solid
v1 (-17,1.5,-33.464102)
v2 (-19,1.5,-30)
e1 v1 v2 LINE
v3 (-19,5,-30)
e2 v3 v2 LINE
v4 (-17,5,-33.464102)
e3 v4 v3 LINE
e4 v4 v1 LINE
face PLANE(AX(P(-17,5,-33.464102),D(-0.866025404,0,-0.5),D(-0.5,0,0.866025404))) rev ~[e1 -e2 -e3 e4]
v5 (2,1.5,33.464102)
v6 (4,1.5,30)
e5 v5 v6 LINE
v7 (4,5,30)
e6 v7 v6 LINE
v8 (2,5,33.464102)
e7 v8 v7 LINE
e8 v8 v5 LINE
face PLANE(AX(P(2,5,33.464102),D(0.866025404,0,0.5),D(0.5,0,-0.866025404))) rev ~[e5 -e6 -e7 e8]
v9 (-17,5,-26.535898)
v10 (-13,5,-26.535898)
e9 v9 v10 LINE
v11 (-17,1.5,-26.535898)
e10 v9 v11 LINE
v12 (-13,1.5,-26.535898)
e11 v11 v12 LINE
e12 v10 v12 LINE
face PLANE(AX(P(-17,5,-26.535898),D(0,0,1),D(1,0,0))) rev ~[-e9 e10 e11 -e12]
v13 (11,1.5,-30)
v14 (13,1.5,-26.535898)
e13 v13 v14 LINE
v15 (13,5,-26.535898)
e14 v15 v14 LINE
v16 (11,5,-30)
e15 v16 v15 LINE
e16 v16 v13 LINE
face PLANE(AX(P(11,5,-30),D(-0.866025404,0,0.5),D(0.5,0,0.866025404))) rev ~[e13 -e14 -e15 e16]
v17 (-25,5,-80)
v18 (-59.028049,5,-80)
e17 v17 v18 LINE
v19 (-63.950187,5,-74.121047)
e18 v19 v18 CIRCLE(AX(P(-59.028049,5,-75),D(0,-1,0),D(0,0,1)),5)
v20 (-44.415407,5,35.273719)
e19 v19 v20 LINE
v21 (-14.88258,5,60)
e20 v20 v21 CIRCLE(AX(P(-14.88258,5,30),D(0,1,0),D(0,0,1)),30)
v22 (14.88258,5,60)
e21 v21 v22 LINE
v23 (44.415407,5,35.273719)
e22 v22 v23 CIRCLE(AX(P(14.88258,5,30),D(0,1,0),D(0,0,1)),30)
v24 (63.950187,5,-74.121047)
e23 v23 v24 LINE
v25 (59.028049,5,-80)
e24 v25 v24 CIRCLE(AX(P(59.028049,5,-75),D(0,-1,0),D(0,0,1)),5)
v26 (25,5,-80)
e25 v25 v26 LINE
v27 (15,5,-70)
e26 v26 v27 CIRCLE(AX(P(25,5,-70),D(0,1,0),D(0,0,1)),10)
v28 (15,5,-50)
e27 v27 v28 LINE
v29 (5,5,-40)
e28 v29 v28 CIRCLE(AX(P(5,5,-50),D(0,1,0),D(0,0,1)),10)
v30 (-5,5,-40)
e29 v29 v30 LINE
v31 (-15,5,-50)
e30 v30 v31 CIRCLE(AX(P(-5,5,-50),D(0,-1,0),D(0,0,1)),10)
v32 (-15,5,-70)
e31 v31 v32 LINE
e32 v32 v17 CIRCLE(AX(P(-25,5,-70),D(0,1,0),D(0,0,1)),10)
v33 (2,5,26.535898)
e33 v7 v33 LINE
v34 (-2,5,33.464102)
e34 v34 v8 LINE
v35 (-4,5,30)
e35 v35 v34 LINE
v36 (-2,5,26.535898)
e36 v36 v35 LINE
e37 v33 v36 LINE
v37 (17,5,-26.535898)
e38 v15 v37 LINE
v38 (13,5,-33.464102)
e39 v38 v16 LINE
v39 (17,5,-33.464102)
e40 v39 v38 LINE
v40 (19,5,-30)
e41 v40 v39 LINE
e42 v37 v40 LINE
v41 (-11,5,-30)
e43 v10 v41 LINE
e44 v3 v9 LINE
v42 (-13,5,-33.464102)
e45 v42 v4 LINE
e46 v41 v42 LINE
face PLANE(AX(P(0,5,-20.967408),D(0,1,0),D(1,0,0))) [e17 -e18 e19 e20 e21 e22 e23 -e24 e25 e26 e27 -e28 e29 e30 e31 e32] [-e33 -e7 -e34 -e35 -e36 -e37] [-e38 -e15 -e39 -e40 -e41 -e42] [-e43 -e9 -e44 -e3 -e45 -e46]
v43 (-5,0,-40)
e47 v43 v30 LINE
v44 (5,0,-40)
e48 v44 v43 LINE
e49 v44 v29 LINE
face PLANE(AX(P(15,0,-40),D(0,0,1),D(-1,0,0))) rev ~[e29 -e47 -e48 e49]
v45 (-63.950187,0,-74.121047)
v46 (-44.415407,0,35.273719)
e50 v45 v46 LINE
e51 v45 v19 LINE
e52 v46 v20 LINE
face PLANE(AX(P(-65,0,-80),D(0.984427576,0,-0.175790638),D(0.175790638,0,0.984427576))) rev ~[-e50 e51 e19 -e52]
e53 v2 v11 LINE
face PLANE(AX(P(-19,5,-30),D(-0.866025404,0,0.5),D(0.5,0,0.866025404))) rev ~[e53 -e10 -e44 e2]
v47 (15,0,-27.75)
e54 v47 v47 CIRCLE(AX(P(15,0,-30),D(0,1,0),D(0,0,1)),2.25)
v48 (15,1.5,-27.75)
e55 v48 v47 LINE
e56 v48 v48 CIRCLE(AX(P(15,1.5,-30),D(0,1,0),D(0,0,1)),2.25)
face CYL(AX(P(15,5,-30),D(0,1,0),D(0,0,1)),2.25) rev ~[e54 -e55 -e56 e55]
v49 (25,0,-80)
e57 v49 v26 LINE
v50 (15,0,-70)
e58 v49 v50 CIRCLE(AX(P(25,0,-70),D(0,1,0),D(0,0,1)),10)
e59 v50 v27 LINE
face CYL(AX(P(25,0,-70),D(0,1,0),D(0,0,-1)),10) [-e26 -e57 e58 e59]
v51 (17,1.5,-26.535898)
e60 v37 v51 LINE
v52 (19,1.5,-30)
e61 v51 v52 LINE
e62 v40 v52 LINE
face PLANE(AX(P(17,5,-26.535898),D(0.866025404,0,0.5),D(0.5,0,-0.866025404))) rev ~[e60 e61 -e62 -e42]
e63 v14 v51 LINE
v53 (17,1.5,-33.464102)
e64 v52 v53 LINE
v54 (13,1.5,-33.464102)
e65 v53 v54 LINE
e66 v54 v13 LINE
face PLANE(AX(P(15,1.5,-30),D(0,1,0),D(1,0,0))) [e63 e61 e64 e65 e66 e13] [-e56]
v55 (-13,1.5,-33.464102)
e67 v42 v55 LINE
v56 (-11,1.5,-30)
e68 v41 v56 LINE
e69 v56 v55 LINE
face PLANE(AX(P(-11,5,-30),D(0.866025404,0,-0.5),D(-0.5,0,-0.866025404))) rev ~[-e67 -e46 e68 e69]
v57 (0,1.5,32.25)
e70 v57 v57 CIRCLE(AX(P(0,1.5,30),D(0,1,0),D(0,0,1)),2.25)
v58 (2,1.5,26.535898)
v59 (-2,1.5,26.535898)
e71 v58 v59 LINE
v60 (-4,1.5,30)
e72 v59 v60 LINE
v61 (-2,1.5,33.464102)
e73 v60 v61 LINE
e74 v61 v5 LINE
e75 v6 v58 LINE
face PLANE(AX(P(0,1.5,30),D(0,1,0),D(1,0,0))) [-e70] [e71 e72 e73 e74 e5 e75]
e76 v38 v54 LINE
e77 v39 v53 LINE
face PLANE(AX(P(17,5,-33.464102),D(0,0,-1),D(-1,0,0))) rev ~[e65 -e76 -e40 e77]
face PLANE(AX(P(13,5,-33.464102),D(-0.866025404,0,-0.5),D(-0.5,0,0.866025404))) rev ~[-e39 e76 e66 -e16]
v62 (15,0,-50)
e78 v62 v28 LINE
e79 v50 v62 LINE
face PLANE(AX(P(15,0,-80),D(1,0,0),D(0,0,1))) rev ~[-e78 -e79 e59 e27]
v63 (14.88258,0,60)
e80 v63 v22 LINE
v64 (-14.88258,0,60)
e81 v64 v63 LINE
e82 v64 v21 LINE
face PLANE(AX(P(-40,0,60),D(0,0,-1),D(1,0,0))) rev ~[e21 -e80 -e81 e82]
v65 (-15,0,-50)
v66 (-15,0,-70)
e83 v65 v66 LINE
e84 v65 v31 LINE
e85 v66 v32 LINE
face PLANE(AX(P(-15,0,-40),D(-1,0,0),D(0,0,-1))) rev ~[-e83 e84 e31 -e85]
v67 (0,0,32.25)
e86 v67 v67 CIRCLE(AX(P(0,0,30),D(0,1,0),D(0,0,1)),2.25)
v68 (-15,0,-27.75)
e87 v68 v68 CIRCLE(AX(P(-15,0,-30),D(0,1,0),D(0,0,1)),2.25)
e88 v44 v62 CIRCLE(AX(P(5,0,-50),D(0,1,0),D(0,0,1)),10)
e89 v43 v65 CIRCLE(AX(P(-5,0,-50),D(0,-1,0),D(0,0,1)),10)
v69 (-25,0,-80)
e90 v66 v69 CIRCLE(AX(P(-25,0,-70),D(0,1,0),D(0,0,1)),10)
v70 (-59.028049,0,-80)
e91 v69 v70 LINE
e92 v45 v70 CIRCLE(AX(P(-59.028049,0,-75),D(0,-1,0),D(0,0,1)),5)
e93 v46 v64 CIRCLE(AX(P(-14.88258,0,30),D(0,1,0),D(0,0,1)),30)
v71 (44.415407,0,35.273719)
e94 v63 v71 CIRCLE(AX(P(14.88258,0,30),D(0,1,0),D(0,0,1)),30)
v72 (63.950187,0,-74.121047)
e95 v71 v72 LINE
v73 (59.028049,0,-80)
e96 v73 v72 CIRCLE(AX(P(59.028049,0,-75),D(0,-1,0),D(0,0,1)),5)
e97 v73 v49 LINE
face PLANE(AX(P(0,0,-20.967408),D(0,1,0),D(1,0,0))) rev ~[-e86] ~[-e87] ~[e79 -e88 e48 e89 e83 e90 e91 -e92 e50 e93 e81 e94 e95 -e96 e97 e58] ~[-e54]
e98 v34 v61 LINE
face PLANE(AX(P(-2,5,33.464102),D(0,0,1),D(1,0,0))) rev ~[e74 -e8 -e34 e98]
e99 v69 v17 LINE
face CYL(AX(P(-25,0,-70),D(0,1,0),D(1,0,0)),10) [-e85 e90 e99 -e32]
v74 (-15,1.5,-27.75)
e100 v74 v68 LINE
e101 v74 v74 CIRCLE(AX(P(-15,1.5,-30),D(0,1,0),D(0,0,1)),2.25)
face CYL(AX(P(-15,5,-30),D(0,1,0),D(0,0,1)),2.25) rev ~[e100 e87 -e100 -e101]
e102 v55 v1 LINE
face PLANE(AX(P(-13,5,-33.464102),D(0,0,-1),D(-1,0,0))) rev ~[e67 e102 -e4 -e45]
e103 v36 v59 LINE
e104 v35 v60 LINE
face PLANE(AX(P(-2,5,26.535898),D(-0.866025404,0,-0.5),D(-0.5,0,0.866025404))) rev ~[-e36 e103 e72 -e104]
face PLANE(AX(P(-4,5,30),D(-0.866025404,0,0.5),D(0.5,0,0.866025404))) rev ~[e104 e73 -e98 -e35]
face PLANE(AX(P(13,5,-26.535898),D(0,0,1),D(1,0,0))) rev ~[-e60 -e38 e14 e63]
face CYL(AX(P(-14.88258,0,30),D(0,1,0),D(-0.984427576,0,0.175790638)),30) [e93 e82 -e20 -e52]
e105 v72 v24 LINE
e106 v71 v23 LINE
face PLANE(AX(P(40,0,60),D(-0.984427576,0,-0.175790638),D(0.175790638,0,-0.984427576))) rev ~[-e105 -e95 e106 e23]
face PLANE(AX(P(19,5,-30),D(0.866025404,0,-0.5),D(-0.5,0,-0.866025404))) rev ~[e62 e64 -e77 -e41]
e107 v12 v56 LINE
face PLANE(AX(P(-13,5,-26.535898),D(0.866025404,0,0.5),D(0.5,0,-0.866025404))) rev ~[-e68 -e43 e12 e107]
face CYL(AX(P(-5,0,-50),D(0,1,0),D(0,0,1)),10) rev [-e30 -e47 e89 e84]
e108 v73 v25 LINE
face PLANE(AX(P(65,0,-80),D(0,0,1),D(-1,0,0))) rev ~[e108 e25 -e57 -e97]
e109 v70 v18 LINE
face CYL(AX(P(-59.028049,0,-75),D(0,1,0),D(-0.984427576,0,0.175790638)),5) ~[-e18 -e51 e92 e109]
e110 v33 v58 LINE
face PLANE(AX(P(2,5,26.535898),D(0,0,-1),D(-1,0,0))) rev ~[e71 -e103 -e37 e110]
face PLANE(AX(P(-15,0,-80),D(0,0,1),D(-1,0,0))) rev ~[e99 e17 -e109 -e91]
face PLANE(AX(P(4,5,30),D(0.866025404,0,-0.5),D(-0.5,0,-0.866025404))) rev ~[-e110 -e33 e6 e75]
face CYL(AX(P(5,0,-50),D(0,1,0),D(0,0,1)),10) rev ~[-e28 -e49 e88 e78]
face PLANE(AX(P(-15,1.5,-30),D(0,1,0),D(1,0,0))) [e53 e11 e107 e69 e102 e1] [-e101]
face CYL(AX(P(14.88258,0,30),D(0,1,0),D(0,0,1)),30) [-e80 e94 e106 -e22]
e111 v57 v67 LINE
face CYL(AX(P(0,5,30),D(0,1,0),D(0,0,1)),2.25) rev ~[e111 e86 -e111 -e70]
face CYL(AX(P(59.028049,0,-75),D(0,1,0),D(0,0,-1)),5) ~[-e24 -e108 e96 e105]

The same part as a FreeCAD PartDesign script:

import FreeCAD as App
import Part
import Sketcher
from FreeCAD import Vector
Q = App.Units.Quantity


def edges_at(feature, points):
    """Names of the edges that pass closest to the given points."""
    edges = feature.Shape.Edges
    near = lambda p: min(range(len(edges)), key=lambda i: edges[i].distToShape(Part.Vertex(*p))[0])
    return sorted({f"Edge{near(p) + 1}" for p in points})


def add_polygon(sketch, points):
    """Adds a closed chain of lines whose ends are joined by coincident constraints."""
    first, n = sketch.GeometryCount, len(points)
    for a, b in zip(points, points[1:] + points[:1]):
        sketch.addGeometry(Part.LineSegment(App.Vector(*a, 0), App.Vector(*b, 0)), False)
    for i in range(n):
        sketch.addConstraint(Sketcher.Constraint("Coincident", first + i, 2, first + (i + 1) % n, 1))

doc = App.newDocument("Part")
params = doc.addObject("Spreadsheet::Sheet", "Params")
for row, (alias, value) in enumerate([
    ("sketch1_width", "50 mm"),
    ("sketch1_width2", "80 mm"),
    ("sketch1_width3", "30 mm"),
    ("sketch1_height", "40 mm"),
    ("pad1_length", "5 mm"),
    ("sketch2_diameter", "4.5 mm"),
    ("pocket1_length", "5 mm"),
    ("fillet_radius", "30 mm"),
    ("fillet2_radius", "30 mm"),
    ("fillet3_radius", "10 mm"),
    ("fillet4_radius", "10 mm"),
    ("fillet5_radius", "10 mm"),
    ("fillet6_radius", "10 mm"),
    ("fillet7_radius", "5 mm"),
    ("fillet8_radius", "5 mm"),
    ("sketch3_width", "4 mm"),
    ("sketch3_length", "4 mm"),
    ("pocket2_length", "3.5 mm"),
], start=1):
    params.set(f"A{row}", alias)
    params.set(f"B{row}", "=" + value)
    params.setAlias(f"B{row}", alias)

body = doc.addObject("PartDesign::Body", "Body")

# Sketch on XZ plane
sketch1 = doc.addObject("Sketcher::SketchObject", "Sketch")
body.addObject(sketch1)
sketch1.AttachmentSupport = (doc.XZ_Plane, [""])
sketch1.MapMode = "FlatFace"
add_polygon(sketch1, [(-15, -40), (-15, -80), (-65, -80), (-40, 60), (40, 60), (65, -80), (15, -80), (15, -40)])  # lines 0-7
sketch1.addConstraint(Sketcher.Constraint("Vertical", 0))
sketch1.addConstraint(Sketcher.Constraint("Horizontal", 1))
sketch1.addConstraint(Sketcher.Constraint("Horizontal", 3))
sketch1.addConstraint(Sketcher.Constraint("Horizontal", 5))
sketch1.addConstraint(Sketcher.Constraint("Vertical", 6))
sketch1.addConstraint(Sketcher.Constraint("Horizontal", 7))
sketch1.addConstraint(Sketcher.Constraint("Symmetric", 1, 2, 4, 2, -2))
sketch1.addConstraint(Sketcher.Constraint("Equal", 1, 5))
sketch1.addConstraint(Sketcher.Constraint("Equal", 2, 4))
sketch1.addConstraint(Sketcher.Constraint("DistanceX", 1, 2, 1, 1, Q("50 mm")))
sketch1.addConstraint(Sketcher.Constraint("DistanceX", 3, 1, 3, 2, Q("80 mm")))
sketch1.addConstraint(Sketcher.Constraint("DistanceX", 7, 2, 7, 1, Q("30 mm")))
sketch1.addConstraint(Sketcher.Constraint("DistanceY", 0, 2, 0, 1, Q("40 mm")))
sketch1.addConstraint(Sketcher.Constraint("DistanceY", 0, 2, -1, 1, Q("80 mm")))
sketch1.addConstraint(Sketcher.Constraint("DistanceY", -1, 1, 2, 2, Q("60 mm")))
sketch1.setExpression("Constraints[17]", "Params.sketch1_width")
sketch1.setExpression("Constraints[18]", "Params.sketch1_width2")
sketch1.setExpression("Constraints[19]", "Params.sketch1_width3")
sketch1.setExpression("Constraints[20]", "Params.sketch1_height")
pad1 = doc.addObject("PartDesign::Pad", "Pad")
body.addObject(pad1)
pad1.Profile = sketch1
pad1.setExpression("Length", "Params.pad1_length")
pad1.Reversed = True

# Sketch on XZ plane
sketch2 = doc.addObject("Sketcher::SketchObject", "Sketch001")
body.addObject(sketch2)
sketch2.AttachmentSupport = (doc.XZ_Plane, [""])
sketch2.MapMode = "FlatFace"
sketch2.AttachmentOffset = App.Placement(Vector(0, 0, -5), App.Rotation())
sketch2.addGeometry(Part.Circle(Vector(0, 30, 0), Vector(0, 0, 1), 2.2), False)
sketch2.addGeometry(Part.Circle(Vector(-15, -30, 0), Vector(0, 0, 1), 2.2), False)
sketch2.addGeometry(Part.Circle(Vector(15, -30, 0), Vector(0, 0, 1), 2.2), False)
sketch2.addConstraint(Sketcher.Constraint("Equal", 0, 1))
sketch2.addConstraint(Sketcher.Constraint("Equal", 1, 2))
sketch2.addConstraint(Sketcher.Constraint("Symmetric", 1, 3, 2, 3, -2))
sketch2.addConstraint(Sketcher.Constraint("PointOnObject", 0, 3, -2))
sketch2.addConstraint(Sketcher.Constraint("Diameter", 0, Q("4.5 mm")))
sketch2.addConstraint(Sketcher.Constraint("DistanceY", -1, 1, 0, 3, Q("30 mm")))
sketch2.addConstraint(Sketcher.Constraint("DistanceX", 1, 3, -1, 1, Q("15 mm")))
sketch2.addConstraint(Sketcher.Constraint("DistanceY", 1, 3, -1, 1, Q("30 mm")))
sketch2.setExpression("Constraints[4]", "Params.sketch2_diameter")
pocket1 = doc.addObject("PartDesign::Pocket", "Pocket")
body.addObject(pocket1)
pocket1.Profile = sketch2
pocket1.setExpression("Length", "Params.pocket1_length")
pocket1.Reversed = True
doc.recompute()

fillet = doc.addObject("PartDesign::Fillet", "Fillet")
body.addObject(fillet)
fillet.Base = (pocket1, edges_at(pocket1, [(-40, 2.5, 60)]))
fillet.setExpression("Radius", "Params.fillet_radius")
doc.recompute()

fillet2 = doc.addObject("PartDesign::Fillet", "Fillet001")
body.addObject(fillet2)
fillet2.Base = (fillet, edges_at(fillet, [(40, 2.5, 60)]))
fillet2.setExpression("Radius", "Params.fillet2_radius")
doc.recompute()

fillet3 = doc.addObject("PartDesign::Fillet", "Fillet002")
body.addObject(fillet3)
fillet3.Base = (fillet2, edges_at(fillet2, [(15, 2.5, -80)]))
fillet3.setExpression("Radius", "Params.fillet3_radius")
doc.recompute()

fillet4 = doc.addObject("PartDesign::Fillet", "Fillet003")
body.addObject(fillet4)
fillet4.Base = (fillet3, edges_at(fillet3, [(-15, 2.5, -80)]))
fillet4.setExpression("Radius", "Params.fillet4_radius")
doc.recompute()

fillet5 = doc.addObject("PartDesign::Fillet", "Fillet004")
body.addObject(fillet5)
fillet5.Base = (fillet4, edges_at(fillet4, [(15, 2.5, -40)]))
fillet5.setExpression("Radius", "Params.fillet5_radius")
doc.recompute()

fillet6 = doc.addObject("PartDesign::Fillet", "Fillet005")
body.addObject(fillet6)
fillet6.Base = (fillet5, edges_at(fillet5, [(-15, 2.5, -40)]))
fillet6.setExpression("Radius", "Params.fillet6_radius")
doc.recompute()

fillet7 = doc.addObject("PartDesign::Fillet", "Fillet006")
body.addObject(fillet7)
fillet7.Base = (fillet6, edges_at(fillet6, [(65, 2.5, -80)]))
fillet7.setExpression("Radius", "Params.fillet7_radius")
doc.recompute()

fillet8 = doc.addObject("PartDesign::Fillet", "Fillet007")
body.addObject(fillet8)
fillet8.Base = (fillet7, edges_at(fillet7, [(-65, 2.5, -80)]))
fillet8.setExpression("Radius", "Params.fillet8_radius")

# Sketch on XZ plane
sketch3 = doc.addObject("Sketcher::SketchObject", "Sketch002")
body.addObject(sketch3)
sketch3.AttachmentSupport = (doc.XZ_Plane, [""])
sketch3.MapMode = "FlatFace"
sketch3.AttachmentOffset = App.Placement(Vector(0, 0, -5), App.Rotation())
add_polygon(sketch3, [(-4, 30), (-2, 33.5), (2, 33.5), (4, 30), (2, 26.5), (-2, 26.5)])  # lines 0-5
add_polygon(sketch3, [(-11, -30), (-13, -33.5), (-17, -33.5), (-19, -30), (-17, -26.5), (-13, -26.5)])  # lines 6-11
add_polygon(sketch3, [(19, -30), (17, -33.5), (13, -33.5), (11, -30), (13, -26.5), (17, -26.5)])  # lines 12-17
sketch3.addConstraint(Sketcher.Constraint("Horizontal", 1))
sketch3.addConstraint(Sketcher.Constraint("Horizontal", 4))
sketch3.addConstraint(Sketcher.Constraint("Horizontal", 7))
sketch3.addConstraint(Sketcher.Constraint("Horizontal", 10))
sketch3.addConstraint(Sketcher.Constraint("Horizontal", 13))
sketch3.addConstraint(Sketcher.Constraint("Horizontal", 16))
sketch3.addConstraint(Sketcher.Constraint("Symmetric", 2, 2, 5, 2, -2))
sketch3.addConstraint(Sketcher.Constraint("Symmetric", 7, 2, 12, 2, -2))
sketch3.addConstraint(Sketcher.Constraint("Symmetric", 11, 2, 14, 2, -2))
sketch3.addConstraint(Sketcher.Constraint("Symmetric", 10, 2, 15, 2, -2))
sketch3.addConstraint(Sketcher.Constraint("Symmetric", 8, 2, 17, 2, -2))
sketch3.addConstraint(Sketcher.Constraint("Parallel", 0, 3))
sketch3.addConstraint(Sketcher.Constraint("Parallel", 2, 5))
sketch3.addConstraint(Sketcher.Constraint("Parallel", 3, 6))
sketch3.addConstraint(Sketcher.Constraint("Parallel", 5, 8))
sketch3.addConstraint(Sketcher.Constraint("Parallel", 6, 9))
sketch3.addConstraint(Sketcher.Constraint("Parallel", 8, 11))
sketch3.addConstraint(Sketcher.Constraint("Parallel", 9, 12))
sketch3.addConstraint(Sketcher.Constraint("Parallel", 11, 14))
sketch3.addConstraint(Sketcher.Constraint("Parallel", 14, 17))
sketch3.addConstraint(Sketcher.Constraint("Horizontal", 8, 2, 11, 2))
sketch3.addConstraint(Sketcher.Constraint("Vertical", 1, 2, 3, 2))
sketch3.addConstraint(Sketcher.Constraint("Vertical", 7, 2, 9, 2))
sketch3.addConstraint(Sketcher.Constraint("Equal", 4, 7))
sketch3.addConstraint(Sketcher.Constraint("Equal", 5, 6))
sketch3.addConstraint(Sketcher.Constraint("DistanceX", 1, 1, 1, 2, Q("4 mm")))
sketch3.addConstraint(Sketcher.Constraint("Angle", 0, Q("60 deg")))
sketch3.addConstraint(Sketcher.Constraint("Distance", 0, Q("4 mm")))
sketch3.addConstraint(Sketcher.Constraint("DistanceY", -1, 1, 2, 2, Q("30 mm")))
sketch3.addConstraint(Sketcher.Constraint("DistanceX", 6, 2, -1, 1, Q("13 mm")))
sketch3.addConstraint(Sketcher.Constraint("DistanceY", 8, 2, -1, 1, Q("30 mm")))
sketch3.setExpression("Constraints[43]", "Params.sketch3_width")
sketch3.setExpression("Constraints[45]", "Params.sketch3_length")
pocket2 = doc.addObject("PartDesign::Pocket", "Pocket001")
body.addObject(pocket2)
pocket2.Profile = sketch3
pocket2.setExpression("Length", "Params.pocket2_length")
pocket2.Reversed = True

doc.recompute()
